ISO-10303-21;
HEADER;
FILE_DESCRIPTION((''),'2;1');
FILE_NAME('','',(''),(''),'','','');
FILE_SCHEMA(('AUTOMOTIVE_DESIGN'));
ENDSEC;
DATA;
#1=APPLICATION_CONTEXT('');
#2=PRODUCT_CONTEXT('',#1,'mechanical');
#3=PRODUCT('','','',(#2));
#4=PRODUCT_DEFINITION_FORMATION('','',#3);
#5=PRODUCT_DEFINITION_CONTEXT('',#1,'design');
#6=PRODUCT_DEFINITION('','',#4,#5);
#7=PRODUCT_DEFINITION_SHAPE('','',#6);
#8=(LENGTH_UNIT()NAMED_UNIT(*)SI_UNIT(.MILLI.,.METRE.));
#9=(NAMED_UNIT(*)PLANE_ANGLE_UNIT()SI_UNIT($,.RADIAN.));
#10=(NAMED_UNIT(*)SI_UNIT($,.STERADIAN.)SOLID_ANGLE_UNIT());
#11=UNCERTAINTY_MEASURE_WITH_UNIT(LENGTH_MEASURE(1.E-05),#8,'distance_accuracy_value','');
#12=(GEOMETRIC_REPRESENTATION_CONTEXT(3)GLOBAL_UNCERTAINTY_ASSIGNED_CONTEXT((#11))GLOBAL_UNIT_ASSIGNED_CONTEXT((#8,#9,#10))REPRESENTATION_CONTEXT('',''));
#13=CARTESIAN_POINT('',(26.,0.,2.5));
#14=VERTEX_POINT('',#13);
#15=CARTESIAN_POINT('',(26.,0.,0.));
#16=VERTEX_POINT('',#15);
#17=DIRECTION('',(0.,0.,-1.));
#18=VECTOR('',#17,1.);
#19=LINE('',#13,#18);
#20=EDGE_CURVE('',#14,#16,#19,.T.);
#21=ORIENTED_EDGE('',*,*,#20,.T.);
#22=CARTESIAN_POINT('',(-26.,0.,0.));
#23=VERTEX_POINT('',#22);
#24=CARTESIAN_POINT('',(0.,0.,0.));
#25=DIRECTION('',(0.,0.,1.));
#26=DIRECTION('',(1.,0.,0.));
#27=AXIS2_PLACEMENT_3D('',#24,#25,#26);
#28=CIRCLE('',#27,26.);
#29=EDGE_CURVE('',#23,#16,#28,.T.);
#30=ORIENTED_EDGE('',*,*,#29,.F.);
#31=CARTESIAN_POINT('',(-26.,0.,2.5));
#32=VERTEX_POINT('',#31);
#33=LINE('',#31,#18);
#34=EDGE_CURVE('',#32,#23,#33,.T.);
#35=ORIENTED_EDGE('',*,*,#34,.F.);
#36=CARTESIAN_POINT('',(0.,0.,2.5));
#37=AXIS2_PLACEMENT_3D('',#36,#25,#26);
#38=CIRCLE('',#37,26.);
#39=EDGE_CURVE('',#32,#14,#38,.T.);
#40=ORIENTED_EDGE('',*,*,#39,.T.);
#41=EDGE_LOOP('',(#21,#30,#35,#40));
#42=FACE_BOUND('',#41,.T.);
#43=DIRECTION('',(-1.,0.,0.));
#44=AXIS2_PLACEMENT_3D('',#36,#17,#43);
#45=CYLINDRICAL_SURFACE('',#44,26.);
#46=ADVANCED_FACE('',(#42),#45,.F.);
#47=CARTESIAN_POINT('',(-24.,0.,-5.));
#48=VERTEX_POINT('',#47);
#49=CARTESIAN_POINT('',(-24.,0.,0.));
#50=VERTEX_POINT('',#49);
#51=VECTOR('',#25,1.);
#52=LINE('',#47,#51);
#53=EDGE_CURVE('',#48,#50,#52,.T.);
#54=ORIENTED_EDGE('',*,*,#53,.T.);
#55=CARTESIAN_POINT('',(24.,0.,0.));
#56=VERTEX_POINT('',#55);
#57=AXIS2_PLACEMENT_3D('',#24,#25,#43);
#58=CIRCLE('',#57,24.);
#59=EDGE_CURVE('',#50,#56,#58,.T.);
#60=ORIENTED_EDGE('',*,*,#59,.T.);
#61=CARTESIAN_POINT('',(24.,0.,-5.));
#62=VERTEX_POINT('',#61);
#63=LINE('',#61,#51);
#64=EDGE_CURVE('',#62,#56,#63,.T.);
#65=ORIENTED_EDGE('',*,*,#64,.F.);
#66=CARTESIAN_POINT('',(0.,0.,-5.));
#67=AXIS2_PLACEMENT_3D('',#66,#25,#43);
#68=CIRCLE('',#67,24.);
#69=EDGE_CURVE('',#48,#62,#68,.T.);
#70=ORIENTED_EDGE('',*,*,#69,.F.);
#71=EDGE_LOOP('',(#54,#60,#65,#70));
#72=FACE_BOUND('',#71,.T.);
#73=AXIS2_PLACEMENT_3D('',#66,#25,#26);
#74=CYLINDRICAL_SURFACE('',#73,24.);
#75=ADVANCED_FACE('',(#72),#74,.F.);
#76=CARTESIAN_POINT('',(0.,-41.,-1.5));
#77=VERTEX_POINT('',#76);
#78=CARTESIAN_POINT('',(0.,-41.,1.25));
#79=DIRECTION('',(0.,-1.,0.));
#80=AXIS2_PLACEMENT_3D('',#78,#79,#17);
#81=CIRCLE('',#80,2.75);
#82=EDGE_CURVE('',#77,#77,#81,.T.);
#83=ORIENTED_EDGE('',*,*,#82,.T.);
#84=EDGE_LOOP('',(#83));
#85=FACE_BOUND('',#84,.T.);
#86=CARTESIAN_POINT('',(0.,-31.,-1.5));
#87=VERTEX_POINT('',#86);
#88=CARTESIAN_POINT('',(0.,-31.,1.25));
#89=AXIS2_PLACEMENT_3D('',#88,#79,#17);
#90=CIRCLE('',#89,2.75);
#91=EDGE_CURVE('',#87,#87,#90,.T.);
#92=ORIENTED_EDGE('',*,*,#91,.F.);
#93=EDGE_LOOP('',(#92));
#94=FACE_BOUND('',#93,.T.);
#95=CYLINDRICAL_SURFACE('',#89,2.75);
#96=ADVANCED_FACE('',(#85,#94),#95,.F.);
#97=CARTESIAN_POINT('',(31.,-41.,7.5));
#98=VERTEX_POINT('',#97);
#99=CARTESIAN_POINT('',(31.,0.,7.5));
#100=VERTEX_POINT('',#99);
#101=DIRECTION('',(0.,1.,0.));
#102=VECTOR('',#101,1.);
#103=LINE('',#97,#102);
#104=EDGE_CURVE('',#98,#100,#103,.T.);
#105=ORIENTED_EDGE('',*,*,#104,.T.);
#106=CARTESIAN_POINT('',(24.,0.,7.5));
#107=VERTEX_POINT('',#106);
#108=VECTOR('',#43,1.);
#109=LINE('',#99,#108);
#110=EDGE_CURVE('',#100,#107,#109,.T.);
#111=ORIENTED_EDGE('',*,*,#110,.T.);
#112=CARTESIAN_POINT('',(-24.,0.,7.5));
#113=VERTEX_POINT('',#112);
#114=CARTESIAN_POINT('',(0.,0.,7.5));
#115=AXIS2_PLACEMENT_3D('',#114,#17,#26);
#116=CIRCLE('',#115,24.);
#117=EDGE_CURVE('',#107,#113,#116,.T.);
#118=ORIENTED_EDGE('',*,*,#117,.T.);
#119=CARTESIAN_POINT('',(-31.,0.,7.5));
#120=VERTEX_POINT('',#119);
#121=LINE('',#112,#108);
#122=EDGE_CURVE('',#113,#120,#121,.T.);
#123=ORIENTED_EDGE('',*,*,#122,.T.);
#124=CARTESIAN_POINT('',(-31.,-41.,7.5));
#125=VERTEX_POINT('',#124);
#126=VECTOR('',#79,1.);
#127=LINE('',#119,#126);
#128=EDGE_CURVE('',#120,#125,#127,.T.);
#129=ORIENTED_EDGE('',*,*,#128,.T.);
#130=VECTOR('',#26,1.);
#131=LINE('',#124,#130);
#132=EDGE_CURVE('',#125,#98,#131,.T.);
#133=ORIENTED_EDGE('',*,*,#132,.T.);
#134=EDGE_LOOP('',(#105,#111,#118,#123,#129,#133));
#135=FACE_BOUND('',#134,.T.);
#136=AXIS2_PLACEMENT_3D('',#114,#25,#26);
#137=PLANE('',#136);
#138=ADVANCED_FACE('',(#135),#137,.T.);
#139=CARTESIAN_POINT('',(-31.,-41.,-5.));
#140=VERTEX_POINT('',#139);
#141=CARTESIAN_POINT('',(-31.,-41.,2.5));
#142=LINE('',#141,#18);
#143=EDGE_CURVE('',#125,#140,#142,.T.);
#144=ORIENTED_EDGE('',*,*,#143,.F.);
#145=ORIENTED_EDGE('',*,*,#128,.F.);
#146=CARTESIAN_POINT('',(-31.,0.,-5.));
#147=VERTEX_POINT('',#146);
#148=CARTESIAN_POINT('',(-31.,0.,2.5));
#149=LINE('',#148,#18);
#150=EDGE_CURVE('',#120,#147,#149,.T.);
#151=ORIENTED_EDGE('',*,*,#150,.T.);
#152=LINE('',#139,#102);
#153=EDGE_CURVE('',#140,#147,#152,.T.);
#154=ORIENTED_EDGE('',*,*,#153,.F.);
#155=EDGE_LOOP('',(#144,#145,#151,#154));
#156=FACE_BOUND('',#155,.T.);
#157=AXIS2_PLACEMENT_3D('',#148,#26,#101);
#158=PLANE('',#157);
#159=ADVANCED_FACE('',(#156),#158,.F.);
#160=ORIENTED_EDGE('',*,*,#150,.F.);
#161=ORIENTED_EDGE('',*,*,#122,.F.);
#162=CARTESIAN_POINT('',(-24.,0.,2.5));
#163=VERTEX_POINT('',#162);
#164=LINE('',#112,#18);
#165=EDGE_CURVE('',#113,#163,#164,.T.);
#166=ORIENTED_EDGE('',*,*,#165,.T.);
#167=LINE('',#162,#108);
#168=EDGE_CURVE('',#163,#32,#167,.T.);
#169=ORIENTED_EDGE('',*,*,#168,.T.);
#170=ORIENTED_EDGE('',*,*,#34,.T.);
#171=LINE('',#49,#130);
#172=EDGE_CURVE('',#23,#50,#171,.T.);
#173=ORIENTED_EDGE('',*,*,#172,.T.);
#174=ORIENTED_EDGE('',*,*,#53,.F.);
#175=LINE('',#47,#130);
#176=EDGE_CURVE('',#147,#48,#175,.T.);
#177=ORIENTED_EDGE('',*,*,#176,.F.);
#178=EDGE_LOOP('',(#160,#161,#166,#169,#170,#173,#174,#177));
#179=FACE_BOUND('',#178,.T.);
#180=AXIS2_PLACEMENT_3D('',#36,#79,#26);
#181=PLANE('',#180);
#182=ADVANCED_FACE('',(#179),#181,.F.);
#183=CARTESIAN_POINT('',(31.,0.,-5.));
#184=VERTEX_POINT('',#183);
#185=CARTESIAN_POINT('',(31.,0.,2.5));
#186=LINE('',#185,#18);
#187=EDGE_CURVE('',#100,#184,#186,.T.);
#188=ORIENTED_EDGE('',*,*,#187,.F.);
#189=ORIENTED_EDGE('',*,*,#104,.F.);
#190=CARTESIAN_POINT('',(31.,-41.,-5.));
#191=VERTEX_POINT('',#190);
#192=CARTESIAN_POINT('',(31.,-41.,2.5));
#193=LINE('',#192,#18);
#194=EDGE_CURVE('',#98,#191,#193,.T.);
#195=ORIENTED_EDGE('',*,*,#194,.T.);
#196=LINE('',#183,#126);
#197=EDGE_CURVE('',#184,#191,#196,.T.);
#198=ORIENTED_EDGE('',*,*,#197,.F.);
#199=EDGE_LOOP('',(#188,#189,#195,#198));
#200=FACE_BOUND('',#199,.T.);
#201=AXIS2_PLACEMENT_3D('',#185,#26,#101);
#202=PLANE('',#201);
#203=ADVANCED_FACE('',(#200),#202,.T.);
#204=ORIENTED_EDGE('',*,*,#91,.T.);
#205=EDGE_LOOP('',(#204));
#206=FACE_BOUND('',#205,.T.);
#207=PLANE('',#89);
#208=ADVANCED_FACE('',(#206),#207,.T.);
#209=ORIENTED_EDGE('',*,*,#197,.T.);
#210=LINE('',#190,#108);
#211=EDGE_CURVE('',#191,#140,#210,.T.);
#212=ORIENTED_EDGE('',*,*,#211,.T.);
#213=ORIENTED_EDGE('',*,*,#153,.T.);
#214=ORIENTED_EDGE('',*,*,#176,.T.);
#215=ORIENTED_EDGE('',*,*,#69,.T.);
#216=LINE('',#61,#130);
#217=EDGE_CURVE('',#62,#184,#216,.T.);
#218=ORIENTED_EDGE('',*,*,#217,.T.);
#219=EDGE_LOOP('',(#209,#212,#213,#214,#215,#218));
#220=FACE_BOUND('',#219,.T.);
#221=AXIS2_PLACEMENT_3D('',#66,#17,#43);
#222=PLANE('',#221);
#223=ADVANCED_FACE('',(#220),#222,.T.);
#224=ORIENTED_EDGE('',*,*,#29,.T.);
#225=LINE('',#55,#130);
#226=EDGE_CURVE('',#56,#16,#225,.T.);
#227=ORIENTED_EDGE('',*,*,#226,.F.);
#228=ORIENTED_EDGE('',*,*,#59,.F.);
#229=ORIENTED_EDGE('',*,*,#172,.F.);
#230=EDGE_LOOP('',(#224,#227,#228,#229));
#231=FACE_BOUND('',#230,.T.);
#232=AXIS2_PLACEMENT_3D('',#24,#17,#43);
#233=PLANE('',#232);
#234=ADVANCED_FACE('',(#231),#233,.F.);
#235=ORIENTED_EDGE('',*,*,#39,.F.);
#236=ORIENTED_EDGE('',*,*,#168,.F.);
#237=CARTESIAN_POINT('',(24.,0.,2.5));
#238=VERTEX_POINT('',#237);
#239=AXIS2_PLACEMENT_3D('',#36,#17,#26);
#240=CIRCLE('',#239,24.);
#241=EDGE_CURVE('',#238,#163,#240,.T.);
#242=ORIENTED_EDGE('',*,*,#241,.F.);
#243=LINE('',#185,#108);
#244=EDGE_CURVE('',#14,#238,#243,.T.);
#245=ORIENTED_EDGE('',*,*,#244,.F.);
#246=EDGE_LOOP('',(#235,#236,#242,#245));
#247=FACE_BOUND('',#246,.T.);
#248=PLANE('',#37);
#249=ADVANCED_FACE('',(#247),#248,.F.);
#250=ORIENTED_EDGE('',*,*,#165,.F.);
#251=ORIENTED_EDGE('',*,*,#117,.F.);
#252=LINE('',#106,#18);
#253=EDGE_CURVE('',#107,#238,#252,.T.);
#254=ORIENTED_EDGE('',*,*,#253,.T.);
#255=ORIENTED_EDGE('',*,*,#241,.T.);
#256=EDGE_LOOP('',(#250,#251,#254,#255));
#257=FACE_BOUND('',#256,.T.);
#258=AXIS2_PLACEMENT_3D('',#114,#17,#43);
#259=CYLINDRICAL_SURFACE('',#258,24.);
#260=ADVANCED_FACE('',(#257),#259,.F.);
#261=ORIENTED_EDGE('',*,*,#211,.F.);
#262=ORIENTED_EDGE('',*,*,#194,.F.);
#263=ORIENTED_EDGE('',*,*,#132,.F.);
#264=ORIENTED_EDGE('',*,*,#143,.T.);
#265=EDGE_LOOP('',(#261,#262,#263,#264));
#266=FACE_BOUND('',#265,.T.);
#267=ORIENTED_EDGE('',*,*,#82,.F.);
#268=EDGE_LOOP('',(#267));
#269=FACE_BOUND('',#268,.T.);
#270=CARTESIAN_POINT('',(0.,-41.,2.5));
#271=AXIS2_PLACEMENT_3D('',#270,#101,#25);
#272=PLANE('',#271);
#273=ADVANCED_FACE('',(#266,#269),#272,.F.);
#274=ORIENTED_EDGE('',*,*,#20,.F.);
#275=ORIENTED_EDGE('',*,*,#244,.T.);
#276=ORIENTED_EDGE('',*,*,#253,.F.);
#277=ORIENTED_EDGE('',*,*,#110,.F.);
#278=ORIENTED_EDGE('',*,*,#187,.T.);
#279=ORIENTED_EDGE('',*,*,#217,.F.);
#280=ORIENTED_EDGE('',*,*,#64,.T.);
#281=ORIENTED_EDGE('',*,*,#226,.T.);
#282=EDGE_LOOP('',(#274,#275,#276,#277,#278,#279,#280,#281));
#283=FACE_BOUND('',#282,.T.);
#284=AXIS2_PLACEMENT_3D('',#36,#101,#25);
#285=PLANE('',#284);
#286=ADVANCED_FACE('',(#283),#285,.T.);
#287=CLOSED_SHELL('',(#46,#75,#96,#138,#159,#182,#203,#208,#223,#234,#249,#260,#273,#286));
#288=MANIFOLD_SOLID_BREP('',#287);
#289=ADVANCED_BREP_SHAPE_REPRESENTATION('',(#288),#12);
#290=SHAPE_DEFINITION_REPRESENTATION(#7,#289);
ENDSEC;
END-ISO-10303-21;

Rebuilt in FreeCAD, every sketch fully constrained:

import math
import FreeCAD as App
import Part
import Sketcher
from FreeCAD import Vector
Q = App.Units.Quantity

doc = App.newDocument("Part")
body = doc.addObject("PartDesign::Body", "Body")

# Sketch on XY plane
sketch1 = body.newObject("Sketcher::SketchObject", "Sketch")
sketch1.AttachmentSupport = (doc.getObject("XY_Plane"), [""])
sketch1.MapMode = "FlatFace"
sketch1.addGeometry([
    Part.ArcOfCircle(Part.Circle(Vector(0, 0, 0), Vector(0, 0, 1), 26), math.radians(180), math.radians(360)),  # 0
    Part.LineSegment(Vector(-26, 0, 0), Vector(-31, 0, 0)),  # 1
    Part.LineSegment(Vector(-31, 0, 0), Vector(-31, -41, 0)),  # 2
    Part.LineSegment(Vector(-31, -41, 0), Vector(31, -41, 0)),  # 3
    Part.LineSegment(Vector(31, -41, 0), Vector(31, 0, 0)),  # 4
    Part.LineSegment(Vector(31, 0, 0), Vector(26, 0, 0)),  # 5
], False)
sketch1.addConstraint([
    Sketcher.Constraint("Coincident", 0, 1, 1, 1),
    Sketcher.Constraint("Coincident", 1, 2, 2, 1),
    Sketcher.Constraint("Coincident", 2, 2, 3, 1),
    Sketcher.Constraint("Coincident", 3, 2, 4, 1),
    Sketcher.Constraint("Coincident", 4, 2, 5, 1),
    Sketcher.Constraint("Coincident", 5, 2, 0, 2),
    Sketcher.Constraint("Horizontal", 1),
    Sketcher.Constraint("Vertical", 2),
    Sketcher.Constraint("Horizontal", 3),
    Sketcher.Constraint("Vertical", 4),
    Sketcher.Constraint("Horizontal", 5),
    Sketcher.Constraint("Coincident", 0, 3, -1, 1),
    Sketcher.Constraint("Symmetric", 1, 2, 4, 2, -1, 1),
    Sketcher.Constraint("PointOnObject", 0, 1, -1),
    Sketcher.Constraint("Radius", 0, Q("26 mm")),
    Sketcher.Constraint("DistanceX", 1, 2, 1, 1, Q("5 mm")),
    Sketcher.Constraint("DistanceY", 2, 2, 2, 1, Q("41 mm")),
])
pad1 = body.newObject("PartDesign::Pad", "Pad")
pad1.Profile = sketch1
pad1.Length = 2.5

# Sketch on XY plane
sketch2 = body.newObject("Sketcher::SketchObject", "Sketch001")
sketch2.AttachmentSupport = (doc.getObject("XY_Plane"), [""])
sketch2.MapMode = "FlatFace"
sketch2.AttachmentOffset = App.Placement(Vector(0, 0, 2.5), App.Rotation())
sketch2.addGeometry([
    Part.LineSegment(Vector(-24, 0, 0), Vector(-31, 0, 0)),  # 0
    Part.LineSegment(Vector(-31, 0, 0), Vector(-31, -41, 0)),  # 1
    Part.LineSegment(Vector(-31, -41, 0), Vector(31, -41, 0)),  # 2
    Part.LineSegment(Vector(31, -41, 0), Vector(31, 0, 0)),  # 3
    Part.LineSegment(Vector(31, 0, 0), Vector(24, 0, 0)),  # 4
    Part.ArcOfCircle(Part.Circle(Vector(0, 0, 0), Vector(0, 0, 1), 24), math.radians(180), math.radians(360)),  # 5
], False)
sketch2.addConstraint([
    Sketcher.Constraint("Coincident", 0, 2, 1, 1),
    Sketcher.Constraint("Coincident", 1, 2, 2, 1),
    Sketcher.Constraint("Coincident", 2, 2, 3, 1),
    Sketcher.Constraint("Coincident", 3, 2, 4, 1),
    Sketcher.Constraint("Coincident", 4, 2, 5, 2),
    Sketcher.Constraint("Coincident", 5, 1, 0, 1),
    Sketcher.Constraint("Horizontal", 0),
    Sketcher.Constraint("Vertical", 1),
    Sketcher.Constraint("Horizontal", 2),
    Sketcher.Constraint("Vertical", 3),
    Sketcher.Constraint("Horizontal", 4),
    Sketcher.Constraint("Coincident", 5, 3, -1, 1),
    Sketcher.Constraint("Symmetric", 0, 2, 3, 2, -1, 1),
    Sketcher.Constraint("PointOnObject", 0, 2, -1),
    Sketcher.Constraint("Radius", 5, Q("24 mm")),
    Sketcher.Constraint("DistanceX", 0, 2, 0, 1, Q("7 mm")),
    Sketcher.Constraint("DistanceY", 1, 2, 1, 1, Q("41 mm")),
])
pad2 = body.newObject("PartDesign::Pad", "Pad001")
pad2.Profile = sketch2
pad2.Length = 5

# Sketch on XY plane
sketch3 = body.newObject("Sketcher::SketchObject", "Sketch002")
sketch3.AttachmentSupport = (doc.getObject("XY_Plane"), [""])
sketch3.MapMode = "FlatFace"
sketch3.AttachmentOffset = App.Placement(Vector(0, 0, -5), App.Rotation())
sketch3.addGeometry([
    Part.LineSegment(Vector(24, 0, 0), Vector(31, 0, 0)),  # 0
    Part.LineSegment(Vector(31, 0, 0), Vector(31, -41, 0)),  # 1
    Part.LineSegment(Vector(31, -41, 0), Vector(-31, -41, 0)),  # 2
    Part.LineSegment(Vector(-31, -41, 0), Vector(-31, 0, 0)),  # 3
    Part.LineSegment(Vector(-31, 0, 0), Vector(-24, 0, 0)),  # 4
    Part.ArcOfCircle(Part.Circle(Vector(0, 0, 0), Vector(0, 0, 1), 24), math.radians(180), math.radians(360)),  # 5
], False)
sketch3.addConstraint([
    Sketcher.Constraint("Coincident", 0, 2, 1, 1),
    Sketcher.Constraint("Coincident", 1, 2, 2, 1),
    Sketcher.Constraint("Coincident", 2, 2, 3, 1),
    Sketcher.Constraint("Coincident", 3, 2, 4, 1),
    Sketcher.Constraint("Coincident", 4, 2, 5, 1),
    Sketcher.Constraint("Coincident", 5, 2, 0, 1),
    Sketcher.Constraint("Horizontal", 0),
    Sketcher.Constraint("Vertical", 1),
    Sketcher.Constraint("Horizontal", 2),
    Sketcher.Constraint("Vertical", 3),
    Sketcher.Constraint("Horizontal", 4),
    Sketcher.Constraint("Coincident", 5, 3, -1, 1),
    Sketcher.Constraint("Symmetric", 0, 2, 3, 2, -1, 1),
    Sketcher.Constraint("PointOnObject", 0, 2, -1),
    Sketcher.Constraint("Radius", 5, Q("24 mm")),
    Sketcher.Constraint("DistanceX", 0, 1, 0, 2, Q("7 mm")),
    Sketcher.Constraint("DistanceY", 1, 2, 1, 1, Q("41 mm")),
])
pad3 = body.newObject("PartDesign::Pad", "Pad002")
pad3.Profile = sketch3
pad3.Length = 5

# Sketch on XZ plane
sketch4 = body.newObject("Sketcher::SketchObject", "Sketch003")
sketch4.AttachmentSupport = (doc.getObject("XZ_Plane"), [""])
sketch4.MapMode = "FlatFace"
sketch4.AttachmentOffset = App.Placement(Vector(0, 0, 41), App.Rotation())
sketch4.addGeometry(Part.Circle(Vector(0, 1.25, 0), Vector(0, 0, 1), 2.75), False)
sketch4.addConstraint([
    Sketcher.Constraint("PointOnObject", 0, 3, -2),
    Sketcher.Constraint("Diameter", 0, Q("5.5 mm")),
    Sketcher.Constraint("DistanceY", -1, 1, 0, 3, Q("1.25 mm")),
])
pocket1 = body.newObject("PartDesign::Pocket", "Pocket")
pocket1.Profile = sketch4
pocket1.Length = 10

doc.recompute()
